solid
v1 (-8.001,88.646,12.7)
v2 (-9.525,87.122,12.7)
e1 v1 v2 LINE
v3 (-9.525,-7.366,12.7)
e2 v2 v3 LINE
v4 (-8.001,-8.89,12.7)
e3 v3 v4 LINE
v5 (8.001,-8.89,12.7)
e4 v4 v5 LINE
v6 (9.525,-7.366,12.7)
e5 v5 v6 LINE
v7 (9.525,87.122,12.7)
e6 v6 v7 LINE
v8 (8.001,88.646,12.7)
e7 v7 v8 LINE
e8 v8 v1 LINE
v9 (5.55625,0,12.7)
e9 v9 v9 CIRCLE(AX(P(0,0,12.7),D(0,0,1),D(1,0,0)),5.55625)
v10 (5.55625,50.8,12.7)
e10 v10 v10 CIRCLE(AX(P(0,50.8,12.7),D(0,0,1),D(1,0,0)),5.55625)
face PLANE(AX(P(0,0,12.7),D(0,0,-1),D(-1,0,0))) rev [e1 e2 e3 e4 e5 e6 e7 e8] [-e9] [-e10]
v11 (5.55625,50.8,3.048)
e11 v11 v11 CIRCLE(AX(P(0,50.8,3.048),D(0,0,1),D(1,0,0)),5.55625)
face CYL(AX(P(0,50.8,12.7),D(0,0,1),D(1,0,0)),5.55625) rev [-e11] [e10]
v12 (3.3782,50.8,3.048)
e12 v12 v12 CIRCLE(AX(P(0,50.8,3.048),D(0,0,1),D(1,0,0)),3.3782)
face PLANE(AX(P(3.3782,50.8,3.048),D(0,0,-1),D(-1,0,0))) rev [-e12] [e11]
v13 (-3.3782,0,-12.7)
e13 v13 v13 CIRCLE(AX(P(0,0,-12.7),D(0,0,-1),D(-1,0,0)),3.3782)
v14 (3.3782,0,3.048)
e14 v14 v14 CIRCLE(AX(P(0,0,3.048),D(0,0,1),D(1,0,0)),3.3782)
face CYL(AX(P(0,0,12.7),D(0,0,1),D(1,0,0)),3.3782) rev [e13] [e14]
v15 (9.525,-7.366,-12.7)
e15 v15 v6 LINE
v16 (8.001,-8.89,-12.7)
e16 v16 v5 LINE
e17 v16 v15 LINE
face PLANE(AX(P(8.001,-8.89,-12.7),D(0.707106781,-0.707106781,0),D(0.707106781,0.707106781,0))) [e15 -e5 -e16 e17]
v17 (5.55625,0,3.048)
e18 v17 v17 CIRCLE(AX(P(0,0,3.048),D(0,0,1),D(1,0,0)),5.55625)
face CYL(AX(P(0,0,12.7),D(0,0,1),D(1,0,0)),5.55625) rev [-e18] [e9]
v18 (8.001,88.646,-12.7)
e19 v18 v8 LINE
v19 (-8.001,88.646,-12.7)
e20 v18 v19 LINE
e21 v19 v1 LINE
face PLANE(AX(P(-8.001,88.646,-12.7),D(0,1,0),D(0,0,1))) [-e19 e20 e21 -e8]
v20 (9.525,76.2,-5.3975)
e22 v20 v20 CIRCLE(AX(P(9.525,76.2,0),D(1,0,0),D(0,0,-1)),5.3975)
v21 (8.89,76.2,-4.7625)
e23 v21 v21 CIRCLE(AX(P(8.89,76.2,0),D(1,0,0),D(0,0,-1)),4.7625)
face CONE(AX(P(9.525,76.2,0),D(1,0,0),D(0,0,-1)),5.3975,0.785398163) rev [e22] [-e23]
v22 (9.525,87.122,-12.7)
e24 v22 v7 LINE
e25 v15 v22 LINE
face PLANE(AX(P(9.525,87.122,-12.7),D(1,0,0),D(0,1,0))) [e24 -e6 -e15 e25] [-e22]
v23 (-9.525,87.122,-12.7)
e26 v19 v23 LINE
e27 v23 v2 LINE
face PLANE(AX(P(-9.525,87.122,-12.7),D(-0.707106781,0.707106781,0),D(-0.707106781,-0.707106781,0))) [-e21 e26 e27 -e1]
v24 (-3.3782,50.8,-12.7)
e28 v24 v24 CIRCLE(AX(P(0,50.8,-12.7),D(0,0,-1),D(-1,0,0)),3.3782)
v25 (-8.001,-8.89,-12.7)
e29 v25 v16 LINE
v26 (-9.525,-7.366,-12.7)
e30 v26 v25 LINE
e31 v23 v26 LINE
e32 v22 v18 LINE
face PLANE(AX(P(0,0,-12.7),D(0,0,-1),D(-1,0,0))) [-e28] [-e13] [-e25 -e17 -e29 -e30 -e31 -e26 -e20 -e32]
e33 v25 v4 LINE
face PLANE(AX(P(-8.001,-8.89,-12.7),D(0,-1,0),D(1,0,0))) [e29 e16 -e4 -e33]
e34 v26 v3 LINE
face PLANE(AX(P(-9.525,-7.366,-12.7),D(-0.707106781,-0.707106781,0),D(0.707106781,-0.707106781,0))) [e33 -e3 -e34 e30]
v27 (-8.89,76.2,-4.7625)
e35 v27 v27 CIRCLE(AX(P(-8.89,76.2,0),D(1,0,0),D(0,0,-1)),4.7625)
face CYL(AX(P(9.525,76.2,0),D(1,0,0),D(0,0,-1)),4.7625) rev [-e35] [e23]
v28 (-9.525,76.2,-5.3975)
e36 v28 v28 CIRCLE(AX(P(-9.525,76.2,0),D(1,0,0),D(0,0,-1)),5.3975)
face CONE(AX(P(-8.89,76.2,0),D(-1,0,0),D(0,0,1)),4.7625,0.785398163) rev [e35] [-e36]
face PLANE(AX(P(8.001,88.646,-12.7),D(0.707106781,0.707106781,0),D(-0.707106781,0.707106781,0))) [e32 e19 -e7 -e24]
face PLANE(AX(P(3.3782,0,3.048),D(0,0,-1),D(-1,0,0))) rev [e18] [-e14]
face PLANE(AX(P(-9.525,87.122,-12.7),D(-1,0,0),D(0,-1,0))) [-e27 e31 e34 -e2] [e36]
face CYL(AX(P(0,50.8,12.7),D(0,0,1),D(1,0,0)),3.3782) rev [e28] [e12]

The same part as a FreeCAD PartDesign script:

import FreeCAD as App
import Part
import Sketcher

V = App.Vector
Q = App.Units.Quantity

doc = App.newDocument("Part")
body = doc.addObject("PartDesign::Body", "Body")

sketch1 = doc.addObject("Sketcher::SketchObject", "Sketch")
body.addObject(sketch1)
sketch1.AttachmentSupport = (doc.XY_Plane, [""])
sketch1.MapMode = "FlatFace"
sketch1.addGeometry([
    Part.LineSegment(V(8, 88.6, 0), V(-8, 88.6, 0)),
    Part.LineSegment(V(-8, 88.6, 0), V(-9.5, 87.1, 0)),
    Part.LineSegment(V(-9.5, 87.1, 0), V(-9.5, -7.4, 0)),
    Part.LineSegment(V(-9.5, -7.4, 0), V(-8, -8.9, 0)),
    Part.LineSegment(V(-8, -8.9, 0), V(8, -8.9, 0)),
    Part.LineSegment(V(8, -8.9, 0), V(9.5, -7.4, 0)),
    Part.LineSegment(V(9.5, -7.4, 0), V(9.5, 87.1, 0)),
    Part.LineSegment(V(9.5, 87.1, 0), V(8, 88.6, 0)),
], False)
sketch1.addConstraint([
    Sketcher.Constraint("Coincident", 0, 2, 1, 1),
    Sketcher.Constraint("Coincident", 1, 2, 2, 1),
    Sketcher.Constraint("Coincident", 2, 2, 3, 1),
    Sketcher.Constraint("Coincident", 3, 2, 4, 1),
    Sketcher.Constraint("Coincident", 4, 2, 5, 1),
    Sketcher.Constraint("Coincident", 5, 2, 6, 1),
    Sketcher.Constraint("Coincident", 6, 2, 7, 1),
    Sketcher.Constraint("Coincident", 7, 2, 0, 1),
    Sketcher.Constraint("Horizontal", 0),
    Sketcher.Constraint("Vertical", 2),
    Sketcher.Constraint("Horizontal", 4),
    Sketcher.Constraint("Vertical", 6),
    Sketcher.Constraint("Symmetric", 2, 2, 5, 2, -2),
    Sketcher.Constraint("Perpendicular", 1, 3),
    Sketcher.Constraint("Perpendicular", 3, 5),
    Sketcher.Constraint("Perpendicular", 5, 7),
    Sketcher.Constraint("Horizontal", 1, 2, 6, 2),
    Sketcher.Constraint("Vertical", 0, 2, 3, 2),
    Sketcher.Constraint("Vertical", 4, 2, 7, 2),
    Sketcher.Constraint("DistanceX", 0, 2, 0, 1, Q("0.63 in")),
    Sketcher.Constraint("DistanceY", 2, 2, 2, 1, Q("3.72 in")),
    Sketcher.Constraint("DistanceY", -1, 1, 0, 2, Q("3.49 in")),
    Sketcher.Constraint("DistanceY", -1, 1, 1, 2, Q("3.43 in")),
])
pad1 = doc.addObject("PartDesign::Pad", "Pad")
body.addObject(pad1)
pad1.Profile = sketch1
pad1.Length = Q("1 in")
pad1.Midplane = True

sketch2 = doc.addObject("Sketcher::SketchObject", "Sketch001")
body.addObject(sketch2)
sketch2.AttachmentSupport = (doc.XZ_Plane, [""])
sketch2.MapMode = "FlatFace"
sketch2.AttachmentOffset = App.Placement(V(0, 0, -3 * 25.4), App.Rotation())
sketch2.addGeometry([
    Part.LineSegment(V(-9.5, 0, 0), V(9.5, 0, 0)),
    Part.LineSegment(V(9.5, 0, 0), V(9.5, -5.4, 0)),
    Part.LineSegment(V(9.5, -5.4, 0), V(8.9, -4.8, 0)),
    Part.LineSegment(V(8.9, -4.8, 0), V(-8.9, -4.8, 0)),
    Part.LineSegment(V(-8.9, -4.8, 0), V(-9.5, -5.4, 0)),
    Part.LineSegment(V(-9.5, -5.4, 0), V(-9.5, 0, 0)),
], False)
sketch2.addConstraint([
    Sketcher.Constraint("Coincident", 0, 2, 1, 1),
    Sketcher.Constraint("Coincident", 1, 2, 2, 1),
    Sketcher.Constraint("Coincident", 2, 2, 3, 1),
    Sketcher.Constraint("Coincident", 3, 2, 4, 1),
    Sketcher.Constraint("Coincident", 4, 2, 5, 1),
    Sketcher.Constraint("Coincident", 5, 2, 0, 1),
    Sketcher.Constraint("Horizontal", 0),
    Sketcher.Constraint("Vertical", 1),
    Sketcher.Constraint("Horizontal", 3),
    Sketcher.Constraint("Vertical", 5),
    Sketcher.Constraint("Symmetric", 0, 2, 5, 2, -1, 1),
    Sketcher.Constraint("Perpendicular", 2, 4),
    Sketcher.Constraint("Horizontal", 1, 2, 4, 2),
    Sketcher.Constraint("Equal", 2, 4),
    Sketcher.Constraint("DistanceX", 3, 2, 3, 1, Q("0.7 in")),
    Sketcher.Constraint("DistanceX", 0, 1, 0, 2, Q("0.75 in")),
    Sketcher.Constraint("DistanceY", 1, 2, 1, 1, Q("0.2125 in")),
])
groove = doc.addObject("PartDesign::Groove", "Groove")
body.addObject(groove)
groove.Profile = sketch2
groove.ReferenceAxis = (sketch2, ["H_Axis"])
groove.Angle = 360

sketch3 = doc.addObject("Sketcher::SketchObject", "Sketch002")
body.addObject(sketch3)
sketch3.AttachmentSupport = (doc.XY_Plane, [""])
sketch3.MapMode = "FlatFace"
sketch3.AttachmentOffset = App.Placement(V(0, 0, 0.5 * 25.4), App.Rotation())
sketch3.addGeometry([
    Part.Circle(V(0, 0, 0), V(0, 0, 1), 3.4),
    Part.Circle(V(0, 50.8, 0), V(0, 0, 1), 3.4),
], False)
sketch3.addConstraint([
    Sketcher.Constraint("Coincident", 0, 3, -1, 1),
    Sketcher.Constraint("Equal", 0, 1),
    Sketcher.Constraint("PointOnObject", 1, 3, -2),
    Sketcher.Constraint("Diameter", 0, Q("0.266 in")),
    Sketcher.Constraint("DistanceY", -1, 1, 1, 3, Q("2 in")),
])
doc.recompute()
hole = doc.addObject("PartDesign::Hole", "Hole")
body.addObject(hole)
hole.Profile = sketch3
hole.ThreadType = "None"
hole.Diameter = Q("0.266 in")
hole.DepthType = "Dimension"
hole.Depth = Q("1 in")
hole.DrillPoint = "Flat"
hole.HoleCutType = "Counterbore"
hole.HoleCutDiameter = Q("0.4375 in")
hole.HoleCutDepth = Q("0.38 in")

doc.recompute()
